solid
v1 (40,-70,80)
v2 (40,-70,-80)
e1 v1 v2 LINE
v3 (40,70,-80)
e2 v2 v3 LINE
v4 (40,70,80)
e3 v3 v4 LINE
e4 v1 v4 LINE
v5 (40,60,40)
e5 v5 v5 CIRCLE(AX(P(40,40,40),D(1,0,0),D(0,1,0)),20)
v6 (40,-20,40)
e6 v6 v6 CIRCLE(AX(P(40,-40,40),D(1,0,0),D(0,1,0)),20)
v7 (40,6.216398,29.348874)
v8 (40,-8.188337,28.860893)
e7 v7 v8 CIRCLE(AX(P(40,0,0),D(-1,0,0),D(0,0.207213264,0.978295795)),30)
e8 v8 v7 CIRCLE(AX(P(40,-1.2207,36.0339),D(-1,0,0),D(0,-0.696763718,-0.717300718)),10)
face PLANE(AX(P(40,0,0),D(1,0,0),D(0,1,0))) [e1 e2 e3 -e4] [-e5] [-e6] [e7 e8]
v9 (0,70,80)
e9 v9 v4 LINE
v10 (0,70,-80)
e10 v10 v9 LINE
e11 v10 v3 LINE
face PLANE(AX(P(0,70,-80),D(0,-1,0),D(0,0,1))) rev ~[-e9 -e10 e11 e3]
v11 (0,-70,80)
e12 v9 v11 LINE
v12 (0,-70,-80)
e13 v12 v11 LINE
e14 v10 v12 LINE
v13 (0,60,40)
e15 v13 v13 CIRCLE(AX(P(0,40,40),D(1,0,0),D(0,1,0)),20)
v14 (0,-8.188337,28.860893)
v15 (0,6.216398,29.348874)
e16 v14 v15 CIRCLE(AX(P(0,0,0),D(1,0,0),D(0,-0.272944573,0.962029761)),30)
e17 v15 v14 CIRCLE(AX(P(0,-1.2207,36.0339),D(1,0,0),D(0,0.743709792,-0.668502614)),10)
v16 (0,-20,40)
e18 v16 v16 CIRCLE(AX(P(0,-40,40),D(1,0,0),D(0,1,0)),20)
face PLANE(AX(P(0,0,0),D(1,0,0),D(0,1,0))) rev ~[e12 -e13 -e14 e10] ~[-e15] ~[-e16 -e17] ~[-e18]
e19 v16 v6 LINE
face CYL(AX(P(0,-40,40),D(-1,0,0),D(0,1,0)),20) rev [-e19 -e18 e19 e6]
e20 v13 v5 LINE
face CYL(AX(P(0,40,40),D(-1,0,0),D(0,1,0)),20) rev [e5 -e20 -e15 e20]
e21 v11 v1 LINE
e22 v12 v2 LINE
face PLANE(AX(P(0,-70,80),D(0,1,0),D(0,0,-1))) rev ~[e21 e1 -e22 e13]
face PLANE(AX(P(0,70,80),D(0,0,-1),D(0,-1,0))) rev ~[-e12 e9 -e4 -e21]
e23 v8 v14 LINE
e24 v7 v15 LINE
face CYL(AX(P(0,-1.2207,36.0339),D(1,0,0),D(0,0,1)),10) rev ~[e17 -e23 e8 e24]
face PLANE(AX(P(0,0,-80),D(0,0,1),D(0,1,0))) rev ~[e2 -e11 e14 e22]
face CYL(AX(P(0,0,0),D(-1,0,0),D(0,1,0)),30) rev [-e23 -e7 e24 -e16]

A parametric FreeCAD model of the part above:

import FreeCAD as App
import Part
import Sketcher
from FreeCAD import Vector

doc = App.newDocument("Part")
body = doc.addObject("PartDesign::Body", "Body")

sketch1 = doc.addObject("Sketcher::SketchObject", "Sketch")
body.addObject(sketch1)
sketch1.AttachmentSupport = (doc.YZ_Plane, [""])
sketch1.MapMode = "FlatFace"
sketch1.addGeometry([
    Part.LineSegment(Vector(70, 80, 0), Vector(-70, 80, 0)),
    Part.LineSegment(Vector(-70, 80, 0), Vector(-70, -80, 0)),
    Part.LineSegment(Vector(-70, -80, 0), Vector(70, -80, 0)),
    Part.LineSegment(Vector(70, -80, 0), Vector(70, 80, 0)),
    Part.Circle(Vector(-40, 40, 0), Vector(0, 0, 1), 20),
    Part.Circle(Vector(0, 0, 0), Vector(0, 0, 1), 30),
    Part.Circle(Vector(40, 40, 0), Vector(0, 0, 1), 20),
], False)
sketch1.addConstraint([
    Sketcher.Constraint("Coincident", 0, 2, 1, 1),
    Sketcher.Constraint("Coincident", 1, 2, 2, 1),
    Sketcher.Constraint("Coincident", 2, 2, 3, 1),
    Sketcher.Constraint("Coincident", 3, 2, 0, 1),
    Sketcher.Constraint("Horizontal", 0),
    Sketcher.Constraint("Vertical", 1),
    Sketcher.Constraint("Horizontal", 2),
    Sketcher.Constraint("Vertical", 3),
    Sketcher.Constraint("Coincident", 5, 3, -1, 1),
    Sketcher.Constraint("Equal", 4, 6),
    Sketcher.Constraint("Symmetric", 0, 2, 2, 2, -1, 1),
    Sketcher.Constraint("Symmetric", 4, 3, 6, 3, -2),
    Sketcher.Constraint("Diameter", 4, 40.0),
    Sketcher.Constraint("Diameter", 5, 60.0),
    Sketcher.Constraint("DistanceX", 0, 2, 0, 1, 140.0),
    Sketcher.Constraint("DistanceY", 1, 2, 1, 1, 160.0),
    Sketcher.Constraint("DistanceX", 4, 3, -1, 1, 40.0),
    Sketcher.Constraint("DistanceY", -1, 1, 4, 3, 40.0),
])
pad1 = doc.addObject("PartDesign::Pad", "Pad")
body.addObject(pad1)
pad1.Profile = sketch1
pad1.Length = 40

sketch2 = doc.addObject("Sketcher::SketchObject", "Sketch001")
body.addObject(sketch2)
sketch2.AttachmentSupport = (doc.YZ_Plane, [""])
sketch2.MapMode = "FlatFace"
sketch2.addGeometry(Part.Circle(Vector(-1.2207, 36.0339, 0), Vector(0, 0, 1), 10), False)
sketch2.addConstraint([
    Sketcher.Constraint("Diameter", 0, 20.0),
    Sketcher.Constraint("DistanceY", -1, 1, 0, 3, 36.034),
    Sketcher.Constraint("DistanceX", 0, 3, -1, 1, 1.2207),
])
doc.recompute()
hole = doc.addObject("PartDesign::Hole", "Hole")
body.addObject(hole)
hole.Profile = sketch2
hole.ThreadType = "None"
hole.Diameter = 20
hole.DepthType = "Dimension"
hole.Depth = 60
hole.DrillPoint = "Angled"
hole.DrillPointAngle = 118
hole.Reversed = True

doc.recompute()
